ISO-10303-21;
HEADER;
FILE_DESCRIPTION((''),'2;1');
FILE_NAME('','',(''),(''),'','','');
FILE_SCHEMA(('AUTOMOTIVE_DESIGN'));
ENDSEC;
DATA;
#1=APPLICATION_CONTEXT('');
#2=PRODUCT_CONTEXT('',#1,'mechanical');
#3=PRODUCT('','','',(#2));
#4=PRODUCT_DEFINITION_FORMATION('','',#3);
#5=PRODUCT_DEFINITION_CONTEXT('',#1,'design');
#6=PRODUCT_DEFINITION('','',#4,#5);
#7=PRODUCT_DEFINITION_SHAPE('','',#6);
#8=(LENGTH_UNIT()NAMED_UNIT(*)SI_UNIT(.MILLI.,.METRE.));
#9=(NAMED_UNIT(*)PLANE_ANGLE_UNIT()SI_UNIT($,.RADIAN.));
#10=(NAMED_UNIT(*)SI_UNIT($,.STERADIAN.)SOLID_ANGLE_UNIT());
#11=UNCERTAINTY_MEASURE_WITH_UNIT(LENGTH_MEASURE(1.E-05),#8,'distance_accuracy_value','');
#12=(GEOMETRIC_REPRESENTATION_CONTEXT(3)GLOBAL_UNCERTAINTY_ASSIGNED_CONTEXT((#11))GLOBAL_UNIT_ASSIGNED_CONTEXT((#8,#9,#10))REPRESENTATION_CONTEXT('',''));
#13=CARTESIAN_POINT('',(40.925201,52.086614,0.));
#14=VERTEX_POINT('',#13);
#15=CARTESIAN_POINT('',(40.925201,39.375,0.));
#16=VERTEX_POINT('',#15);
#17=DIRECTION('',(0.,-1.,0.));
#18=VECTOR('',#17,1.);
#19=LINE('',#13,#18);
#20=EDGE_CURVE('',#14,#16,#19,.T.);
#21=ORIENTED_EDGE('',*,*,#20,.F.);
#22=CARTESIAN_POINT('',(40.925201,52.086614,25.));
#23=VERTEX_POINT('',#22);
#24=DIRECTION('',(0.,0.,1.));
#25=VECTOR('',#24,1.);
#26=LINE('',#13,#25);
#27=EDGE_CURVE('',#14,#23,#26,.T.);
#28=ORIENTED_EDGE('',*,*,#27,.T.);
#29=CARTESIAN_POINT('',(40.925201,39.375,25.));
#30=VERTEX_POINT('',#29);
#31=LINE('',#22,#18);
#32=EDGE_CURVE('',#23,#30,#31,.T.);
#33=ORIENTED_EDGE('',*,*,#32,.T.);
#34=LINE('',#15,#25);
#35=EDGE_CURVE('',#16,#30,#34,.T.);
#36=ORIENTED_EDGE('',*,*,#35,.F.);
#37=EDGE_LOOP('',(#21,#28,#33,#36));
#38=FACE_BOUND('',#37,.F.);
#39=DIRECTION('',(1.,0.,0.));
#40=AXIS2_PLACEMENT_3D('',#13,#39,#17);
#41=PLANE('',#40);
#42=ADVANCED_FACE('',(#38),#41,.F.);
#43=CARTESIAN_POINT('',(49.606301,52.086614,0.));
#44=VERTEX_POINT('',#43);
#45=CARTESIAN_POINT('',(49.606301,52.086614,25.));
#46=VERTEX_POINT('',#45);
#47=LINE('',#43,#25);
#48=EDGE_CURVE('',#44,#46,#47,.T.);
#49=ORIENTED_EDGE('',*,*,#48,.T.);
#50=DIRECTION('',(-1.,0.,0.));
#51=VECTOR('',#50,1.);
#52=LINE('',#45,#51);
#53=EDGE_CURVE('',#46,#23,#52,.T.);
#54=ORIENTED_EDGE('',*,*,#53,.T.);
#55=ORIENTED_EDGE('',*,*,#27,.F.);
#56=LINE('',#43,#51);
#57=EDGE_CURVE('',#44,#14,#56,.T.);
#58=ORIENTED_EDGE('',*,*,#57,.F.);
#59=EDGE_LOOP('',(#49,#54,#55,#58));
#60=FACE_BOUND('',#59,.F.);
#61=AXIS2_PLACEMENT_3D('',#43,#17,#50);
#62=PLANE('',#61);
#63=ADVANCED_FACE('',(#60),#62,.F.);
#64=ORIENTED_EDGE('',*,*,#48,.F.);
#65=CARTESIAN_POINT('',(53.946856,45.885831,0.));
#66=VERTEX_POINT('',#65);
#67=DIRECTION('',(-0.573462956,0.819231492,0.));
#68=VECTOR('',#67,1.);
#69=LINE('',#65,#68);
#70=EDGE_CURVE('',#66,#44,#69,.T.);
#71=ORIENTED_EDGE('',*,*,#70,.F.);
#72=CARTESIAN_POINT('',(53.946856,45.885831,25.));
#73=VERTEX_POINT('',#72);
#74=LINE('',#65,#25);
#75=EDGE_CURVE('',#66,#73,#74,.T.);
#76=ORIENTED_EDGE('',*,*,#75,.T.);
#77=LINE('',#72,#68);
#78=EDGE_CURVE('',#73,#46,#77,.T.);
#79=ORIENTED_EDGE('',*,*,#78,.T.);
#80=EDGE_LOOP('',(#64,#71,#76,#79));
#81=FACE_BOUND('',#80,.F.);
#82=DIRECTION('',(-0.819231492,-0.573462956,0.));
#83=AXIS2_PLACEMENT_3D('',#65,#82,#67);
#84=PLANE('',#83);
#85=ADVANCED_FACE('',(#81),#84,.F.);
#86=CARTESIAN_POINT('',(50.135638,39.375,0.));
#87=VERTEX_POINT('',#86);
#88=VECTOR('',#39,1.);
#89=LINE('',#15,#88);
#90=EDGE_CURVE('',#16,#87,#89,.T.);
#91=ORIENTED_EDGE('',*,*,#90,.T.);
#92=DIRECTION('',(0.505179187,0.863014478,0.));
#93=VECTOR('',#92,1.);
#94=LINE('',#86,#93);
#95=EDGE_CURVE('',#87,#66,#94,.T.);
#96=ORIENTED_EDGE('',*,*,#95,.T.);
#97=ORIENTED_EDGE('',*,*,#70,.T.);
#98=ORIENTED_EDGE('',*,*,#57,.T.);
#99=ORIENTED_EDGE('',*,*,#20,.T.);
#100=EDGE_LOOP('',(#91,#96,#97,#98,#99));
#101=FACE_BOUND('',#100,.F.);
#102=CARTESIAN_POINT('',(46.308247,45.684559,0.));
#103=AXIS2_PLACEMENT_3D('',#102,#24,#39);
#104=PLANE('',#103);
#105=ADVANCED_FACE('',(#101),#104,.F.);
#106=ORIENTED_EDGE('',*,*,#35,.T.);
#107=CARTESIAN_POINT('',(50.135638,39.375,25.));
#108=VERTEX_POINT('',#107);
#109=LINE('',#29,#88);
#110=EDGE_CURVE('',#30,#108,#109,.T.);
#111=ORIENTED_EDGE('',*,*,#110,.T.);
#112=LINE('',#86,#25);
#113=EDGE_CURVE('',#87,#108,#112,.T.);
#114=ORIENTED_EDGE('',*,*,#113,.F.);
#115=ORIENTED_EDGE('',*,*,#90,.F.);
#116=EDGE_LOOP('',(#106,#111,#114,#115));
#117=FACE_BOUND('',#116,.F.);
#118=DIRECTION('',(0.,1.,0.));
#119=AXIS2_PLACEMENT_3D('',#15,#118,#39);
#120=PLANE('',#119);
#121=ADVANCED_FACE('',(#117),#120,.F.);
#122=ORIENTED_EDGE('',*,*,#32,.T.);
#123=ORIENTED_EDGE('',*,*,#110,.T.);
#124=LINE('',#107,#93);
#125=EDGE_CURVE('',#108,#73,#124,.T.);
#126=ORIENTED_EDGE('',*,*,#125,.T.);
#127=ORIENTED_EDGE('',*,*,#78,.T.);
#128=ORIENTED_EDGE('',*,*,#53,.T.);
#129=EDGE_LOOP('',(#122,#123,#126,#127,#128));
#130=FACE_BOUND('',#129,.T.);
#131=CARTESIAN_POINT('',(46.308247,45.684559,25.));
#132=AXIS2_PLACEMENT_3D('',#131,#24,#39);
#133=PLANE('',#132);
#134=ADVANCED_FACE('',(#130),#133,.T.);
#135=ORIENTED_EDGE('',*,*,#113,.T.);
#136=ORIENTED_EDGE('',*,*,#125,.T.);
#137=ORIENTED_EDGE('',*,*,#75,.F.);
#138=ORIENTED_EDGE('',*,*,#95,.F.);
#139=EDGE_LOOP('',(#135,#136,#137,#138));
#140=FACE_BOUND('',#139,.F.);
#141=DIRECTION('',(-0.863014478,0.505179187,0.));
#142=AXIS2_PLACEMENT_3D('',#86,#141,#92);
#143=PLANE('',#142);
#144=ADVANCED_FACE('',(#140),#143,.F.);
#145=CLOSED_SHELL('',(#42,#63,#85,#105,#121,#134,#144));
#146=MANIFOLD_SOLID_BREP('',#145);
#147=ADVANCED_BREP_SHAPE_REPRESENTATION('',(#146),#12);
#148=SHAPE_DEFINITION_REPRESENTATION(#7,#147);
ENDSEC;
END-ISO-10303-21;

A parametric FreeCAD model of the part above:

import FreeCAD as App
import Part
import Sketcher


def add_polygon(sketch, points):
    """Adds a closed chain of lines whose ends are joined by coincident constraints."""
    first, n = sketch.GeometryCount, len(points)
    for a, b in zip(points, points[1:] + points[:1]):
        sketch.addGeometry(Part.LineSegment(App.Vector(*a, 0), App.Vector(*b, 0)), False)
    for i in range(n):
        sketch.addConstraint(Sketcher.Constraint("Coincident", first + i, 2, first + (i + 1) % n, 1))

doc = App.newDocument("Part")
body = doc.addObject("PartDesign::Body", "Body")

sketch1 = body.newObject("Sketcher::SketchObject", "Sketch")
sketch1.AttachmentSupport = (doc.getObject("XY_Plane"), [""])
sketch1.MapMode = "FlatFace"
add_polygon(sketch1, [(41, 52), (41, 39), (50, 39), (54, 46), (50, 52)])
sketch1.addConstraint([
    Sketcher.Constraint("Vertical", 0),
    Sketcher.Constraint("Horizontal", 1),
    Sketcher.Constraint("Horizontal", 4),
    Sketcher.Constraint("DistanceX", 4, 2, 4, 1, 8.6811),
    Sketcher.Constraint("DistanceY", -1, 1, 0, 2, 39.375),
    Sketcher.Constraint("DistanceX", -1, 1, 0, 2, 40.925201),
    Sketcher.Constraint("Distance", 2, 7.544289),
    Sketcher.Constraint("DistanceX", 1, 1, 1, 2, 9.210437),
    Sketcher.Constraint("DistanceY", 0, 2, 0, 1, 12.711614),
    Sketcher.Constraint("DistanceY", -1, 1, 2, 2, 45.885831),
])
pad1 = body.newObject("PartDesign::Pad", "Pad")
pad1.Profile = sketch1
pad1.Length = 25

sketch2 = body.newObject("Sketcher::SketchObject", "Sketch001")
sketch2.AttachmentSupport = (doc.getObject("XY_Plane"), [""])
sketch2.MapMode = "FlatFace"
add_polygon(sketch2, [(41, 52), (41, 39), (50, 39), (54, 46), (50, 52)])
sketch2.addConstraint([
    Sketcher.Constraint("Vertical", 0),
    Sketcher.Constraint("Horizontal", 1),
    Sketcher.Constraint("Horizontal", 4),
    Sketcher.Constraint("DistanceX", 4, 2, 4, 1, 8.6811),
    Sketcher.Constraint("DistanceY", -1, 1, 0, 2, 39.375),
    Sketcher.Constraint("DistanceX", -1, 1, 0, 2, 40.925201),
    Sketcher.Constraint("Distance", 2, 7.544289),
    Sketcher.Constraint("DistanceX", 1, 1, 1, 2, 9.210437),
    Sketcher.Constraint("DistanceY", 0, 2, 0, 1, 12.711614),
    Sketcher.Constraint("DistanceY", -1, 1, 2, 2, 45.885831),
])
pad2 = body.newObject("PartDesign::Pad", "Pad001")
pad2.Profile = sketch2
pad2.Length = 25

doc.recompute()
